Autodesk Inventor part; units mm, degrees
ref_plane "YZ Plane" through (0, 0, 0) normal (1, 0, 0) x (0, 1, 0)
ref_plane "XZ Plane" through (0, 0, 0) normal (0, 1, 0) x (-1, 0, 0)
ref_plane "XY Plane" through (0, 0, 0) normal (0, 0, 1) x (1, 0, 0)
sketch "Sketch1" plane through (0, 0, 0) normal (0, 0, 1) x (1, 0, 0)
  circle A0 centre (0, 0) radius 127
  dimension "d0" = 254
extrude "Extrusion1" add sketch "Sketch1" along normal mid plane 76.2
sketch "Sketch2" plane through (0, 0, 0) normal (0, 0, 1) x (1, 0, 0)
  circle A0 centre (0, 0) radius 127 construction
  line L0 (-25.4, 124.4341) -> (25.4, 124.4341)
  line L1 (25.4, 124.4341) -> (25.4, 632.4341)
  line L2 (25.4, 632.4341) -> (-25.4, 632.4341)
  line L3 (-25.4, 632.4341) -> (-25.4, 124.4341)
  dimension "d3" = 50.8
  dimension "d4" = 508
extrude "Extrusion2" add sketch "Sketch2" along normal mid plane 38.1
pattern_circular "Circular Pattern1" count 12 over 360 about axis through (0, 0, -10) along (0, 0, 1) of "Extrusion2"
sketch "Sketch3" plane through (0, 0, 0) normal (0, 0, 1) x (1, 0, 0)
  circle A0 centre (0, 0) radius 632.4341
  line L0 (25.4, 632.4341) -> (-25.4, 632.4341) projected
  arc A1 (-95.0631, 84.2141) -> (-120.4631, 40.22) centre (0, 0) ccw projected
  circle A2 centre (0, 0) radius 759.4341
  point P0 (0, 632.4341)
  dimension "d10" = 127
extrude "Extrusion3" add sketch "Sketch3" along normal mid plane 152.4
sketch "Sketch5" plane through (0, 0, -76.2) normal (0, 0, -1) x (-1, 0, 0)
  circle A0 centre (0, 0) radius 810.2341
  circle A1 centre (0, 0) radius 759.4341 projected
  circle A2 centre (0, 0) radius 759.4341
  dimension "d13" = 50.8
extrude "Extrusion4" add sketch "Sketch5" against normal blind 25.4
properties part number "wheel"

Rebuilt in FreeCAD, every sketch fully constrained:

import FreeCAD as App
import Part
import Sketcher
from FreeCAD import Vector
Q = App.Units.Quantity


def add_polygon(sketch, points):
    """Adds a closed chain of lines whose ends are joined by coincident constraints."""
    first, n = sketch.GeometryCount, len(points)
    for a, b in zip(points, points[1:] + points[:1]):
        sketch.addGeometry(Part.LineSegment(App.Vector(*a, 0), App.Vector(*b, 0)), False)
    for i in range(n):
        sketch.addConstraint(Sketcher.Constraint("Coincident", first + i, 2, first + (i + 1) % n, 1))

doc = App.newDocument("Part")
body = doc.addObject("PartDesign::Body", "Body")

# Sketch on XY plane
sketch1 = body.newObject("Sketcher::SketchObject", "Sketch")
sketch1.AttachmentSupport = (doc.getObject("XY_Plane"), [""])
sketch1.MapMode = "FlatFace"
sketch1.addGeometry(Part.Circle(Vector(0, 0, 0), Vector(0, 0, 1), 127), False)
sketch1.addConstraint([
    Sketcher.Constraint("Coincident", 0, 3, -1, 1),
    Sketcher.Constraint("Diameter", 0, Q("10 in")),
])
pad1 = body.newObject("PartDesign::Pad", "Pad")
pad1.Profile = sketch1
pad1.Length = Q("3 in")
pad1.Midplane = True

# Sketch on XY plane
sketch2 = body.newObject("Sketcher::SketchObject", "Sketch001")
sketch2.AttachmentSupport = (doc.getObject("XY_Plane"), [""])
sketch2.MapMode = "FlatFace"
add_polygon(sketch2, [(-25.4, 632.4341), (-25.4, 124.4341), (25.4, 124.4341), (25.4, 632.4341)])  # lines 0-3
sketch2.addConstraint([
    Sketcher.Constraint("Vertical", 0),
    Sketcher.Constraint("Horizontal", 1),
    Sketcher.Constraint("Vertical", 2),
    Sketcher.Constraint("Horizontal", 3),
    Sketcher.Constraint("DistanceX", 1, 1, 1, 2, Q("2 in")),
    Sketcher.Constraint("DistanceY", 0, 2, 0, 1, Q("20 in")),
    Sketcher.Constraint("DistanceX", 0, 2, -1, 1, Q("1 in")),
    Sketcher.Constraint("DistanceY", -1, 1, 0, 2, 124.434),
])
pad2 = body.newObject("PartDesign::Pad", "Pad001")
pad2.Profile = sketch2
pad2.Length = Q("1.5 in")
pad2.Midplane = True
doc.recompute()

polarpattern = body.newObject("PartDesign::PolarPattern", "PolarPattern")
polarpattern.Originals = [pad2]
polarpattern.Axis = (doc.getObject("Z_Axis"), [""])
polarpattern.Angle = 360
polarpattern.Occurrences = 12
body.Tip = polarpattern

# Sketch on XY plane
sketch3 = body.newObject("Sketcher::SketchObject", "Sketch002")
sketch3.AttachmentSupport = (doc.getObject("XY_Plane"), [""])
sketch3.MapMode = "FlatFace"
sketch3.addGeometry([
    Part.Circle(Vector(0, 0, 0), Vector(0, 0, 1), 759.4341),
    Part.Circle(Vector(0, 0, 0), Vector(0, 0, 1), 632.4341),
], False)
sketch3.addConstraint([
    Sketcher.Constraint("Coincident", 0, 3, -1, 1),
    Sketcher.Constraint("Coincident", 1, 3, -1, 1),
    Sketcher.Constraint("Diameter", 0, 1518.8682),
    Sketcher.Constraint("Diameter", 1, 1264.8682),
])
pad3 = body.newObject("PartDesign::Pad", "Pad002")
pad3.Profile = sketch3
pad3.Length = Q("6 in")
pad3.Midplane = True

# Sketch on XY plane
sketch4 = body.newObject("Sketcher::SketchObject", "Sketch003")
sketch4.AttachmentSupport = (doc.getObject("XY_Plane"), [""])
sketch4.MapMode = "FlatFace"
sketch4.AttachmentOffset = App.Placement(Vector(0, 0, -3 * 25.4), App.Rotation())
sketch4.addGeometry([
    Part.Circle(Vector(0, 0, 0), Vector(0, 0, 1), 810.2341),
    Part.Circle(Vector(0, 0, 0), Vector(0, 0, 1), 759.4341),
], False)
sketch4.addConstraint([
    Sketcher.Constraint("Coincident", 0, 3, -1, 1),
    Sketcher.Constraint("Coincident", 1, 3, -1, 1),
    Sketcher.Constraint("Diameter", 0, 1620.4682),
    Sketcher.Constraint("Diameter", 1, 1518.8682),
])
pad4 = body.newObject("PartDesign::Pad", "Pad003")
pad4.Profile = sketch4
pad4.Length = Q("1 in")

doc.recompute()
